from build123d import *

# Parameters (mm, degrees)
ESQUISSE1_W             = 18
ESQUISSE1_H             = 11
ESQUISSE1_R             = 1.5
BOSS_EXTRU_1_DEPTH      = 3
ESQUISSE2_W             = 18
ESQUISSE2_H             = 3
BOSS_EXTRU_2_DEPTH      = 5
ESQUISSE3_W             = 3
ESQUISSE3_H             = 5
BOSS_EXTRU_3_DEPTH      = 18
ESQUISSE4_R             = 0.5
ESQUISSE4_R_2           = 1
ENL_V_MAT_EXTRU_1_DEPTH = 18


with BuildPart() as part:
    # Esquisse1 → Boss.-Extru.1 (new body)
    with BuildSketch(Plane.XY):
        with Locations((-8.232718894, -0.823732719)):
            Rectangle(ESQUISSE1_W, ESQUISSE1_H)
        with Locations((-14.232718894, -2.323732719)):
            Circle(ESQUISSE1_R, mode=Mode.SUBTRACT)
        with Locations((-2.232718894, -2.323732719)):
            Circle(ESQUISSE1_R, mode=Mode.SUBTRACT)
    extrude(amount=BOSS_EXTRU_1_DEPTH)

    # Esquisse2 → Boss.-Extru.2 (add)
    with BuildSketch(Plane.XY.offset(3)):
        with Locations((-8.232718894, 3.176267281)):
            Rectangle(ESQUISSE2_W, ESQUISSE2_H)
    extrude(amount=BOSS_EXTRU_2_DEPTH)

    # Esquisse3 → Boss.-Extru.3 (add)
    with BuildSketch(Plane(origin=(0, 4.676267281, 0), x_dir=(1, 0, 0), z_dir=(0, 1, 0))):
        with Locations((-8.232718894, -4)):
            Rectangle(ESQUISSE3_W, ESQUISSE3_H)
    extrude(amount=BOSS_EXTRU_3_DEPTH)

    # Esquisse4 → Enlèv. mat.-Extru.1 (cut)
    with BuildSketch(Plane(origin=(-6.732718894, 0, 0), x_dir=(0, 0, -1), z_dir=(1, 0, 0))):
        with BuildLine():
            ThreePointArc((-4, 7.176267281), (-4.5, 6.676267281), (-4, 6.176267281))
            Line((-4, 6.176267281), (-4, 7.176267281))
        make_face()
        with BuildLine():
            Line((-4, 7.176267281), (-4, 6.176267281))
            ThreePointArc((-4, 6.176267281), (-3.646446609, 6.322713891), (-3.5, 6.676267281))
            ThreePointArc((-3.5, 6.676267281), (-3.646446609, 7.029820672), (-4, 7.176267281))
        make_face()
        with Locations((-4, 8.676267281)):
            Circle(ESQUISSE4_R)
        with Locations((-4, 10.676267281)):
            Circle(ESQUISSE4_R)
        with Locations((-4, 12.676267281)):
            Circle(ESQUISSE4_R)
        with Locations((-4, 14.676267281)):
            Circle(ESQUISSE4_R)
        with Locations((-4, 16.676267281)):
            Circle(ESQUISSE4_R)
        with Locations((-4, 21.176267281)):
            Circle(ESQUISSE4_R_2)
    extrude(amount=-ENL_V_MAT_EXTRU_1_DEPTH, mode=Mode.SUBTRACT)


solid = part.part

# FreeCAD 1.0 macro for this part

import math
import FreeCAD as App
import Part
import Sketcher
from FreeCAD import Vector
Q = App.Units.Quantity


def add_polygon(sketch, points):
    """Adds a closed chain of lines whose ends are joined by coincident constraints."""
    first, n = sketch.GeometryCount, len(points)
    for a, b in zip(points, points[1:] + points[:1]):
        sketch.addGeometry(Part.LineSegment(App.Vector(*a, 0), App.Vector(*b, 0)), False)
    for i in range(n):
        sketch.addConstraint(Sketcher.Constraint("Coincident", first + i, 2, first + (i + 1) % n, 1))

doc = App.newDocument("Part")
body = doc.addObject("PartDesign::Body", "Body")

sketch1 = body.newObject("Sketcher::SketchObject", "Sketch")
sketch1.AttachmentSupport = (doc.getObject("XY_Plane"), [""])
sketch1.MapMode = "FlatFace"
add_polygon(sketch1, [(-17.2, 4.7), (-17.2, -6.3), (0.8, -6.3), (0.8, 4.7)])
sketch1.addGeometry(Part.Circle(Vector(-14.2, -2.3, 0), Vector(0, 0, 1), 1.5), False)
sketch1.addGeometry(Part.Circle(Vector(-2.2, -2.3, 0), Vector(0, 0, 1), 1.5), False)
sketch1.addConstraint([
    Sketcher.Constraint("Vertical", 0),
    Sketcher.Constraint("Horizontal", 1),
    Sketcher.Constraint("Vertical", 2),
    Sketcher.Constraint("Horizontal", 3),
    Sketcher.Constraint("Equal", 4, 5),
    Sketcher.Constraint("Horizontal", 4, 3, 5, 3),
    Sketcher.Constraint("Diameter", 4, Q("3 mm")),
    Sketcher.Constraint("DistanceX", 1, 1, 1, 2, Q("18 mm")),
    Sketcher.Constraint("DistanceY", 0, 2, 0, 1, Q("11 mm")),
    Sketcher.Constraint("DistanceX", 4, 3, 5, 3, Q("12 mm")),
    Sketcher.Constraint("DistanceX", 0, 2, 4, 3, Q("3 mm")),
    Sketcher.Constraint("DistanceY", 0, 2, 4, 3, Q("4 mm")),
    Sketcher.Constraint("DistanceX", 4, 3, -1, 1, Q("14.232719 mm")),
    Sketcher.Constraint("DistanceY", 4, 3, -1, 1, Q("2.323733 mm")),
])
pad1 = body.newObject("PartDesign::Pad", "Pad")
pad1.Profile = sketch1
pad1.Length = 3

sketch2 = body.newObject("Sketcher::SketchObject", "Sketch001")
sketch2.AttachmentSupport = (doc.getObject("XY_Plane"), [""])
sketch2.MapMode = "FlatFace"
sketch2.AttachmentOffset = App.Placement(Vector(0, 0, 3), App.Rotation())
add_polygon(sketch2, [(-17.2, 4.7), (-17.2, 1.7), (0.8, 1.7), (0.8, 4.7)])
sketch2.addConstraint([
    Sketcher.Constraint("Vertical", 0),
    Sketcher.Constraint("Horizontal", 1),
    Sketcher.Constraint("Vertical", 2),
    Sketcher.Constraint("Horizontal", 3),
    Sketcher.Constraint("DistanceX", 1, 1, 1, 2, Q("18 mm")),
    Sketcher.Constraint("DistanceY", 0, 2, 0, 1, Q("3 mm")),
    Sketcher.Constraint("DistanceX", 0, 2, -1, 1, Q("17.232719 mm")),
    Sketcher.Constraint("DistanceY", -1, 1, 0, 2, Q("1.676267 mm")),
])
pad2 = body.newObject("PartDesign::Pad", "Pad001")
pad2.Profile = sketch2
pad2.Length = 5

sketch3 = body.newObject("Sketcher::SketchObject", "Sketch002")
sketch3.AttachmentSupport = (doc.getObject("XZ_Plane"), [""])
sketch3.MapMode = "FlatFace"
sketch3.AttachmentOffset = App.Placement(Vector(0, 0, -4.676267), App.Rotation())
add_polygon(sketch3, [(-9.7, 1.5), (-9.7, 6.5), (-6.7, 6.5), (-6.7, 1.5)])
sketch3.addConstraint([
    Sketcher.Constraint("Vertical", 0),
    Sketcher.Constraint("Horizontal", 1),
    Sketcher.Constraint("Vertical", 2),
    Sketcher.Constraint("Horizontal", 3),
    Sketcher.Constraint("DistanceX", 1, 1, 1, 2, Q("3 mm")),
    Sketcher.Constraint("DistanceY", 0, 1, 0, 2, Q("5 mm")),
    Sketcher.Constraint("DistanceY", -1, 1, 0, 2, Q("6.5 mm")),
    Sketcher.Constraint("DistanceX", 0, 2, -1, 1, Q("9.732719 mm")),
])
pad3 = body.newObject("PartDesign::Pad", "Pad002")
pad3.Profile = sketch3
pad3.Length = 18
pad3.Reversed = True

sketch4 = body.newObject("Sketcher::SketchObject", "Sketch003")
sketch4.AttachmentSupport = (doc.getObject("YZ_Plane"), [""])
sketch4.MapMode = "FlatFace"
sketch4.AttachmentOffset = App.Placement(Vector(0, 0, -6.732719), App.Rotation())
sketch4.addGeometry([
    Part.ArcOfCircle(Part.Circle(Vector(6.68, 4, 0), Vector(0, 0, 1), 0.5), math.radians(0), math.radians(180)),
    Part.ArcOfCircle(Part.Circle(Vector(6.68, 4, 0), Vector(0, 0, 1), 0.5), math.radians(180), math.radians(270)),
    Part.ArcOfCircle(Part.Circle(Vector(6.68, 4, 0), Vector(0, 0, 1), 0.5), math.radians(-90), math.radians(0)),
    Part.Circle(Vector(8.68, 4, 0), Vector(0, 0, 1), 0.5),
    Part.Circle(Vector(10.68, 4, 0), Vector(0, 0, 1), 0.5),
    Part.Circle(Vector(12.68, 4, 0), Vector(0, 0, 1), 0.5),
    Part.Circle(Vector(14.68, 4, 0), Vector(0, 0, 1), 0.5),
    Part.Circle(Vector(16.68, 4, 0), Vector(0, 0, 1), 0.5),
    Part.Circle(Vector(21.18, 4, 0), Vector(0, 0, 1), 1),
], False)
sketch4.addConstraint([
    Sketcher.Constraint("Tangent", 0, 2, 1, 1),
    Sketcher.Constraint("Tangent", 1, 2, 2, 1),
    Sketcher.Constraint("Tangent", 2, 2, 0, 1),
    Sketcher.Constraint("Equal", 2, 3),
    Sketcher.Constraint("Equal", 3, 4),
    Sketcher.Constraint("Equal", 4, 5),
    Sketcher.Constraint("Equal", 5, 6),
    Sketcher.Constraint("Equal", 6, 7),
    Sketcher.Constraint("Horizontal", 2, 3, 3, 3),
    Sketcher.Constraint("Horizontal", 3, 3, 4, 3),
    Sketcher.Constraint("Horizontal", 4, 3, 5, 3),
    Sketcher.Constraint("Horizontal", 5, 3, 6, 3),
    Sketcher.Constraint("Horizontal", 6, 3, 7, 3),
    Sketcher.Constraint("Horizontal", 7, 3, 8, 3),
    Sketcher.Constraint("Horizontal", 8, 3, 0, 2),
    Sketcher.Constraint("Horizontal", 0, 2, 2, 2),
    Sketcher.Constraint("Vertical", 2, 3, 1, 2),
    Sketcher.Constraint("Diameter", 3, Q("1 mm")),
    Sketcher.Constraint("Diameter", 8, Q("2 mm")),
    Sketcher.Constraint("DistanceY", -1, 1, 0, 3, Q("4 mm")),
    Sketcher.Constraint("DistanceX", 2, 3, 3, 3, Q("2 mm")),
    Sketcher.Constraint("DistanceX", 3, 3, 4, 3, Q("2 mm")),
    Sketcher.Constraint("DistanceX", 4, 3, 5, 3, Q("2 mm")),
    Sketcher.Constraint("DistanceX", 5, 3, 6, 3, Q("2 mm")),
    Sketcher.Constraint("DistanceX", 6, 3, 7, 3, Q("2 mm")),
    Sketcher.Constraint("DistanceX", 7, 3, 8, 3, Q("4.5 mm")),
    Sketcher.Constraint("DistanceX", -1, 1, 0, 3, Q("6.676267 mm")),
])
pocket1 = body.newObject("PartDesign::Pocket", "Pocket")
pocket1.Profile = sketch4
pocket1.Length = 18

doc.recompute()
